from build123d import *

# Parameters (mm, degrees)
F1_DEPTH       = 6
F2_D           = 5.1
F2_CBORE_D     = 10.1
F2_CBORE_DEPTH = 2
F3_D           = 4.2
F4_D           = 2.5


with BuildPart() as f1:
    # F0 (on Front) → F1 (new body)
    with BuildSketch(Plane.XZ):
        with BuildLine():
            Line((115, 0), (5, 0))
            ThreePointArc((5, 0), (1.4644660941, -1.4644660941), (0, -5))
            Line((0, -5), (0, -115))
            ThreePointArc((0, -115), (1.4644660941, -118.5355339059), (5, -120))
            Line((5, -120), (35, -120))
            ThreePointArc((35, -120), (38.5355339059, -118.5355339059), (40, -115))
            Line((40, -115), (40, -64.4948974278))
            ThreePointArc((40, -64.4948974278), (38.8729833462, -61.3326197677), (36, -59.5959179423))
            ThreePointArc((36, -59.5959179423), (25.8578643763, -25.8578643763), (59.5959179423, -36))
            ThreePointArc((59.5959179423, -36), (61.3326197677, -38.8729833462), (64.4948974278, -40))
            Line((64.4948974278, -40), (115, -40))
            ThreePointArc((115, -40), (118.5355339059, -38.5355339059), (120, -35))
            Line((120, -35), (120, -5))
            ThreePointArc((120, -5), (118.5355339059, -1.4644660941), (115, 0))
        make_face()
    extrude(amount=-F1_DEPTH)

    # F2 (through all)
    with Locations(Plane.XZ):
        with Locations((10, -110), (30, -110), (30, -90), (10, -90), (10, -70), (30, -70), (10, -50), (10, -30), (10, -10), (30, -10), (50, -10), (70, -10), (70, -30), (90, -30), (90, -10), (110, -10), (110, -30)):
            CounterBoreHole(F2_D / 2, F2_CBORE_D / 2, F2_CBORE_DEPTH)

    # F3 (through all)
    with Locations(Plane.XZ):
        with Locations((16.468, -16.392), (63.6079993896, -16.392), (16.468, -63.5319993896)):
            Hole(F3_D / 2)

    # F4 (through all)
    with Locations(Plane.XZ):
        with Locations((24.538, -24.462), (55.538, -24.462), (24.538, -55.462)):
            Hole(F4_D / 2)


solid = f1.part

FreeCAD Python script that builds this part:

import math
import FreeCAD as App
import Part
import Sketcher
from FreeCAD import Vector

doc = App.newDocument("Part")
body = doc.addObject("PartDesign::Body", "Body")

# Sketch on XZ plane
sketch1 = body.newObject("Sketcher::SketchObject", "Sketch")
sketch1.AttachmentSupport = (doc.getObject("XZ_Plane"), [""])
sketch1.MapMode = "FlatFace"
sketch1.addGeometry(Part.LineSegment(Vector(115, 0, 0), Vector(5, 0, 0)), False)
sketch1.addGeometry(Part.ArcOfCircle(Part.Circle(Vector(5, -5, 0), Vector(0, 0, 1), 5), math.radians(90), math.radians(180)), False)
sketch1.addGeometry(Part.LineSegment(Vector(0, -5, 0), Vector(0, -115, 0)), False)
sketch1.addGeometry(Part.ArcOfCircle(Part.Circle(Vector(5, -115, 0), Vector(0, 0, 1), 5), math.radians(180), math.radians(270)), False)
sketch1.addGeometry(Part.LineSegment(Vector(5, -120, 0), Vector(35, -120, 0)), False)
sketch1.addGeometry(Part.ArcOfCircle(Part.Circle(Vector(35, -115, 0), Vector(0, 0, 1), 5), math.radians(-90), math.radians(0)), False)
sketch1.addGeometry(Part.LineSegment(Vector(40, -115, 0), Vector(40, -64, 0)), False)
sketch1.addGeometry(Part.ArcOfCircle(Part.Circle(Vector(35, -64, 0), Vector(0, 0, 1), 5), math.radians(0), math.radians(78)), False)
sketch1.addGeometry(Part.ArcOfCircle(Part.Circle(Vector(40, -40, 0), Vector(0, 0, 1), 20), math.radians(12), math.radians(258)), False)
sketch1.addGeometry(Part.ArcOfCircle(Part.Circle(Vector(64, -35, 0), Vector(0, 0, 1), 5), math.radians(-168), math.radians(-90)), False)
sketch1.addGeometry(Part.LineSegment(Vector(64, -40, 0), Vector(115, -40, 0)), False)
sketch1.addGeometry(Part.ArcOfCircle(Part.Circle(Vector(115, -35, 0), Vector(0, 0, 1), 5), math.radians(-90), math.radians(0)), False)
sketch1.addGeometry(Part.LineSegment(Vector(120, -35, 0), Vector(120, -5, 0)), False)
sketch1.addGeometry(Part.ArcOfCircle(Part.Circle(Vector(115, -5, 0), Vector(0, 0, 1), 5), math.radians(0), math.radians(90)), False)
sketch1.addConstraint(Sketcher.Constraint("Tangent", 0, 2, 1, 1))
sketch1.addConstraint(Sketcher.Constraint("Tangent", 1, 2, 2, 1))
sketch1.addConstraint(Sketcher.Constraint("Tangent", 2, 2, 3, 1))
sketch1.addConstraint(Sketcher.Constraint("Tangent", 3, 2, 4, 1))
sketch1.addConstraint(Sketcher.Constraint("Tangent", 4, 2, 5, 1))
sketch1.addConstraint(Sketcher.Constraint("Tangent", 5, 2, 6, 1))
sketch1.addConstraint(Sketcher.Constraint("Tangent", 6, 2, 7, 1))
sketch1.addConstraint(Sketcher.Constraint("Tangent", 7, 2, 8, 2))
sketch1.addConstraint(Sketcher.Constraint("Tangent", 8, 1, 9, 1))
sketch1.addConstraint(Sketcher.Constraint("Tangent", 9, 2, 10, 1))
sketch1.addConstraint(Sketcher.Constraint("Tangent", 10, 2, 11, 1))
sketch1.addConstraint(Sketcher.Constraint("Tangent", 11, 2, 12, 1))
sketch1.addConstraint(Sketcher.Constraint("Tangent", 12, 2, 13, 1))
sketch1.addConstraint(Sketcher.Constraint("Tangent", 13, 2, 0, 1))
sketch1.addConstraint(Sketcher.Constraint("Horizontal", 0))
sketch1.addConstraint(Sketcher.Constraint("Vertical", 2))
sketch1.addConstraint(Sketcher.Constraint("Horizontal", 4))
sketch1.addConstraint(Sketcher.Constraint("Vertical", 6))
sketch1.addConstraint(Sketcher.Constraint("Horizontal", 10))
sketch1.addConstraint(Sketcher.Constraint("Vertical", 12))
sketch1.addConstraint(Sketcher.Constraint("Equal", 1, 3))
sketch1.addConstraint(Sketcher.Constraint("Equal", 3, 5))
sketch1.addConstraint(Sketcher.Constraint("Equal", 5, 7))
sketch1.addConstraint(Sketcher.Constraint("Equal", 7, 9))
sketch1.addConstraint(Sketcher.Constraint("Equal", 9, 11))
sketch1.addConstraint(Sketcher.Constraint("Equal", 11, 13))
sketch1.addConstraint(Sketcher.Constraint("PointOnObject", 0, 2, -1))
sketch1.addConstraint(Sketcher.Constraint("PointOnObject", 1, 2, -2))
sketch1.addConstraint(Sketcher.Constraint("Horizontal", 8, 3, 9, 2))
sketch1.addConstraint(Sketcher.Constraint("Vertical", 8, 3, 5, 2))
sketch1.addConstraint(Sketcher.Constraint("Equal", 0, 2))
sketch1.addConstraint(Sketcher.Constraint("Equal", 10, 6))
sketch1.addConstraint(Sketcher.Constraint("Radius", 1, 5.0))
sketch1.addConstraint(Sketcher.Constraint("Radius", 8, 20.0))
sketch1.addConstraint(Sketcher.Constraint("DistanceX", 0, 2, 0, 1, 110.0))
sketch1.addConstraint(Sketcher.Constraint("DistanceX", 4, 1, 4, 2, 30.0))
pad1 = body.newObject("PartDesign::Pad", "Pad")
pad1.Profile = sketch1
pad1.Length = 6
pad1.Reversed = True

# Sketch on XZ plane
sketch2 = body.newObject("Sketcher::SketchObject", "Sketch001")
sketch2.AttachmentSupport = (doc.getObject("XZ_Plane"), [""])
sketch2.MapMode = "FlatFace"
sketch2.addGeometry(Part.Circle(Vector(10, -110, 0), Vector(0, 0, 1), 2.5), False)
sketch2.addGeometry(Part.Circle(Vector(30, -110, 0), Vector(0, 0, 1), 2.5), False)
sketch2.addGeometry(Part.Circle(Vector(30, -90, 0), Vector(0, 0, 1), 2.5), False)
sketch2.addGeometry(Part.Circle(Vector(10, -90, 0), Vector(0, 0, 1), 2.5), False)
sketch2.addGeometry(Part.Circle(Vector(10, -70, 0), Vector(0, 0, 1), 2.5), False)
sketch2.addGeometry(Part.Circle(Vector(30, -70, 0), Vector(0, 0, 1), 2.5), False)
sketch2.addGeometry(Part.Circle(Vector(10, -50, 0), Vector(0, 0, 1), 2.5), False)
sketch2.addGeometry(Part.Circle(Vector(10, -30, 0), Vector(0, 0, 1), 2.5), False)
sketch2.addGeometry(Part.Circle(Vector(10, -10, 0), Vector(0, 0, 1), 2.5), False)
sketch2.addGeometry(Part.Circle(Vector(30, -10, 0), Vector(0, 0, 1), 2.5), False)
sketch2.addGeometry(Part.Circle(Vector(50, -10, 0), Vector(0, 0, 1), 2.5), False)
sketch2.addGeometry(Part.Circle(Vector(70, -10, 0), Vector(0, 0, 1), 2.5), False)
sketch2.addGeometry(Part.Circle(Vector(70, -30, 0), Vector(0, 0, 1), 2.5), False)
sketch2.addGeometry(Part.Circle(Vector(90, -30, 0), Vector(0, 0, 1), 2.5), False)
sketch2.addGeometry(Part.Circle(Vector(90, -10, 0), Vector(0, 0, 1), 2.5), False)
sketch2.addGeometry(Part.Circle(Vector(110, -10, 0), Vector(0, 0, 1), 2.5), False)
sketch2.addGeometry(Part.Circle(Vector(110, -30, 0), Vector(0, 0, 1), 2.5), False)
sketch2.addConstraint(Sketcher.Constraint("Equal", 0, 1))
sketch2.addConstraint(Sketcher.Constraint("Equal", 1, 2))
sketch2.addConstraint(Sketcher.Constraint("Equal", 2, 3))
sketch2.addConstraint(Sketcher.Constraint("Equal", 3, 4))
sketch2.addConstraint(Sketcher.Constraint("Equal", 4, 5))
sketch2.addConstraint(Sketcher.Constraint("Equal", 5, 6))
sketch2.addConstraint(Sketcher.Constraint("Equal", 6, 7))
sketch2.addConstraint(Sketcher.Constraint("Equal", 7, 8))
sketch2.addConstraint(Sketcher.Constraint("Equal", 8, 9))
sketch2.addConstraint(Sketcher.Constraint("Equal", 9, 10))
sketch2.addConstraint(Sketcher.Constraint("Equal", 10, 11))
sketch2.addConstraint(Sketcher.Constraint("Equal", 11, 12))
sketch2.addConstraint(Sketcher.Constraint("Equal", 12, 13))
sketch2.addConstraint(Sketcher.Constraint("Equal", 13, 14))
sketch2.addConstraint(Sketcher.Constraint("Equal", 14, 15))
sketch2.addConstraint(Sketcher.Constraint("Equal", 15, 16))
sketch2.addConstraint(Sketcher.Constraint("Horizontal", 0, 3, 1, 3))
sketch2.addConstraint(Sketcher.Constraint("Horizontal", 2, 3, 3, 3))
sketch2.addConstraint(Sketcher.Constraint("Horizontal", 4, 3, 5, 3))
sketch2.addConstraint(Sketcher.Constraint("Horizontal", 8, 3, 9, 3))
sketch2.addConstraint(Sketcher.Constraint("Horizontal", 9, 3, 10, 3))
sketch2.addConstraint(Sketcher.Constraint("Horizontal", 10, 3, 11, 3))
sketch2.addConstraint(Sketcher.Constraint("Horizontal", 7, 3, 12, 3))
sketch2.addConstraint(Sketcher.Constraint("Horizontal", 12, 3, 13, 3))
sketch2.addConstraint(Sketcher.Constraint("Horizontal", 11, 3, 14, 3))
sketch2.addConstraint(Sketcher.Constraint("Horizontal", 14, 3, 15, 3))
sketch2.addConstraint(Sketcher.Constraint("Horizontal", 13, 3, 16, 3))
sketch2.addConstraint(Sketcher.Constraint("Vertical", 1, 3, 2, 3))
sketch2.addConstraint(Sketcher.Constraint("Vertical", 0, 3, 3, 3))
sketch2.addConstraint(Sketcher.Constraint("Vertical", 3, 3, 4, 3))
sketch2.addConstraint(Sketcher.Constraint("Vertical", 2, 3, 5, 3))
sketch2.addConstraint(Sketcher.Constraint("Vertical", 4, 3, 6, 3))
sketch2.addConstraint(Sketcher.Constraint("Vertical", 6, 3, 7, 3))
sketch2.addConstraint(Sketcher.Constraint("Vertical", 7, 3, 8, 3))
sketch2.addConstraint(Sketcher.Constraint("Vertical", 5, 3, 9, 3))
sketch2.addConstraint(Sketcher.Constraint("Vertical", 11, 3, 12, 3))
sketch2.addConstraint(Sketcher.Constraint("Vertical", 13, 3, 14, 3))
sketch2.addConstraint(Sketcher.Constraint("Vertical", 15, 3, 16, 3))
sketch2.addConstraint(Sketcher.Constraint("Diameter", 0, 5.1))
sketch2.addConstraint(Sketcher.Constraint("DistanceX", -1, 1, 0, 3, 10.0))
sketch2.addConstraint(Sketcher.Constraint("DistanceY", 0, 3, -1, 1, 110.0))
sketch2.addConstraint(Sketcher.Constraint("DistanceX", -1, 1, 1, 3, 30.0))
sketch2.addConstraint(Sketcher.Constraint("DistanceY", 2, 3, -1, 1, 90.0))
sketch2.addConstraint(Sketcher.Constraint("DistanceY", 4, 3, -1, 1, 70.0))
sketch2.addConstraint(Sketcher.Constraint("DistanceY", 6, 3, -1, 1, 50.0))
sketch2.addConstraint(Sketcher.Constraint("DistanceY", 7, 3, -1, 1, 30.0))
sketch2.addConstraint(Sketcher.Constraint("DistanceY", 8, 3, -1, 1, 10.0))
sketch2.addConstraint(Sketcher.Constraint("DistanceX", -1, 1, 10, 3, 50.0))
sketch2.addConstraint(Sketcher.Constraint("DistanceX", -1, 1, 11, 3, 70.0))
sketch2.addConstraint(Sketcher.Constraint("DistanceX", -1, 1, 13, 3, 90.0))
sketch2.addConstraint(Sketcher.Constraint("DistanceX", -1, 1, 15, 3, 110.0))
doc.recompute()
hole = body.newObject("PartDesign::Hole", "Hole")
hole.Profile = sketch2
hole.ThreadType = "None"
hole.Diameter = 5.1
hole.DepthType = "ThroughAll"
hole.HoleCutType = "Counterbore"
hole.HoleCutDiameter = 10.1
hole.HoleCutDepth = 2

# Sketch on XZ plane
sketch3 = body.newObject("Sketcher::SketchObject", "Sketch002")
sketch3.AttachmentSupport = (doc.getObject("XZ_Plane"), [""])
sketch3.MapMode = "FlatFace"
sketch3.addGeometry(Part.Circle(Vector(16.5, -16.4, 0), Vector(0, 0, 1), 2.1), False)
sketch3.addGeometry(Part.Circle(Vector(63.6, -16.4, 0), Vector(0, 0, 1), 2.1), False)
sketch3.addGeometry(Part.Circle(Vector(16.5, -63.5, 0), Vector(0, 0, 1), 2.1), False)
sketch3.addConstraint(Sketcher.Constraint("Equal", 0, 1))
sketch3.addConstraint(Sketcher.Constraint("Equal", 1, 2))
sketch3.addConstraint(Sketcher.Constraint("Horizontal", 0, 3, 1, 3))
sketch3.addConstraint(Sketcher.Constraint("Vertical", 0, 3, 2, 3))
sketch3.addConstraint(Sketcher.Constraint("Diameter", 0, 4.2))
sketch3.addConstraint(Sketcher.Constraint("DistanceX", 0, 3, 1, 3, 47.139999))
sketch3.addConstraint(Sketcher.Constraint("DistanceY", 2, 3, 0, 3, 47.139999))
sketch3.addConstraint(Sketcher.Constraint("DistanceX", -1, 1, 0, 3, 16.468))
sketch3.addConstraint(Sketcher.Constraint("DistanceY", 0, 3, -1, 1, 16.392))
doc.recompute()
hole2 = body.newObject("PartDesign::Hole", "Hole001")
hole2.Profile = sketch3
hole2.ThreadType = "None"
hole2.Diameter = 4.2
hole2.DepthType = "ThroughAll"

# Sketch on XZ plane
sketch4 = body.newObject("Sketcher::SketchObject", "Sketch003")
sketch4.AttachmentSupport = (doc.getObject("XZ_Plane"), [""])
sketch4.MapMode = "FlatFace"
sketch4.addGeometry(Part.Circle(Vector(24.5, -24.5, 0), Vector(0, 0, 1), 1.2), False)
sketch4.addGeometry(Part.Circle(Vector(55.5, -24.5, 0), Vector(0, 0, 1), 1.2), False)
sketch4.addGeometry(Part.Circle(Vector(24.5, -55.5, 0), Vector(0, 0, 1), 1.2), False)
sketch4.addConstraint(Sketcher.Constraint("Equal", 0, 1))
sketch4.addConstraint(Sketcher.Constraint("Equal", 1, 2))
sketch4.addConstraint(Sketcher.Constraint("Horizontal", 0, 3, 1, 3))
sketch4.addConstraint(Sketcher.Constraint("Vertical", 0, 3, 2, 3))
sketch4.addConstraint(Sketcher.Constraint("Diameter", 0, 2.5))
sketch4.addConstraint(Sketcher.Constraint("DistanceX", 0, 3, 1, 3, 31.0))
sketch4.addConstraint(Sketcher.Constraint("DistanceY", 2, 3, 0, 3, 31.0))
sketch4.addConstraint(Sketcher.Constraint("DistanceX", -1, 1, 0, 3, 24.538))
sketch4.addConstraint(Sketcher.Constraint("DistanceY", 0, 3, -1, 1, 24.462))
doc.recompute()
hole3 = body.newObject("PartDesign::Hole", "Hole002")
hole3.Profile = sketch4
hole3.ThreadType = "None"
hole3.Diameter = 2.5
hole3.DepthType = "ThroughAll"

doc.recompute()
